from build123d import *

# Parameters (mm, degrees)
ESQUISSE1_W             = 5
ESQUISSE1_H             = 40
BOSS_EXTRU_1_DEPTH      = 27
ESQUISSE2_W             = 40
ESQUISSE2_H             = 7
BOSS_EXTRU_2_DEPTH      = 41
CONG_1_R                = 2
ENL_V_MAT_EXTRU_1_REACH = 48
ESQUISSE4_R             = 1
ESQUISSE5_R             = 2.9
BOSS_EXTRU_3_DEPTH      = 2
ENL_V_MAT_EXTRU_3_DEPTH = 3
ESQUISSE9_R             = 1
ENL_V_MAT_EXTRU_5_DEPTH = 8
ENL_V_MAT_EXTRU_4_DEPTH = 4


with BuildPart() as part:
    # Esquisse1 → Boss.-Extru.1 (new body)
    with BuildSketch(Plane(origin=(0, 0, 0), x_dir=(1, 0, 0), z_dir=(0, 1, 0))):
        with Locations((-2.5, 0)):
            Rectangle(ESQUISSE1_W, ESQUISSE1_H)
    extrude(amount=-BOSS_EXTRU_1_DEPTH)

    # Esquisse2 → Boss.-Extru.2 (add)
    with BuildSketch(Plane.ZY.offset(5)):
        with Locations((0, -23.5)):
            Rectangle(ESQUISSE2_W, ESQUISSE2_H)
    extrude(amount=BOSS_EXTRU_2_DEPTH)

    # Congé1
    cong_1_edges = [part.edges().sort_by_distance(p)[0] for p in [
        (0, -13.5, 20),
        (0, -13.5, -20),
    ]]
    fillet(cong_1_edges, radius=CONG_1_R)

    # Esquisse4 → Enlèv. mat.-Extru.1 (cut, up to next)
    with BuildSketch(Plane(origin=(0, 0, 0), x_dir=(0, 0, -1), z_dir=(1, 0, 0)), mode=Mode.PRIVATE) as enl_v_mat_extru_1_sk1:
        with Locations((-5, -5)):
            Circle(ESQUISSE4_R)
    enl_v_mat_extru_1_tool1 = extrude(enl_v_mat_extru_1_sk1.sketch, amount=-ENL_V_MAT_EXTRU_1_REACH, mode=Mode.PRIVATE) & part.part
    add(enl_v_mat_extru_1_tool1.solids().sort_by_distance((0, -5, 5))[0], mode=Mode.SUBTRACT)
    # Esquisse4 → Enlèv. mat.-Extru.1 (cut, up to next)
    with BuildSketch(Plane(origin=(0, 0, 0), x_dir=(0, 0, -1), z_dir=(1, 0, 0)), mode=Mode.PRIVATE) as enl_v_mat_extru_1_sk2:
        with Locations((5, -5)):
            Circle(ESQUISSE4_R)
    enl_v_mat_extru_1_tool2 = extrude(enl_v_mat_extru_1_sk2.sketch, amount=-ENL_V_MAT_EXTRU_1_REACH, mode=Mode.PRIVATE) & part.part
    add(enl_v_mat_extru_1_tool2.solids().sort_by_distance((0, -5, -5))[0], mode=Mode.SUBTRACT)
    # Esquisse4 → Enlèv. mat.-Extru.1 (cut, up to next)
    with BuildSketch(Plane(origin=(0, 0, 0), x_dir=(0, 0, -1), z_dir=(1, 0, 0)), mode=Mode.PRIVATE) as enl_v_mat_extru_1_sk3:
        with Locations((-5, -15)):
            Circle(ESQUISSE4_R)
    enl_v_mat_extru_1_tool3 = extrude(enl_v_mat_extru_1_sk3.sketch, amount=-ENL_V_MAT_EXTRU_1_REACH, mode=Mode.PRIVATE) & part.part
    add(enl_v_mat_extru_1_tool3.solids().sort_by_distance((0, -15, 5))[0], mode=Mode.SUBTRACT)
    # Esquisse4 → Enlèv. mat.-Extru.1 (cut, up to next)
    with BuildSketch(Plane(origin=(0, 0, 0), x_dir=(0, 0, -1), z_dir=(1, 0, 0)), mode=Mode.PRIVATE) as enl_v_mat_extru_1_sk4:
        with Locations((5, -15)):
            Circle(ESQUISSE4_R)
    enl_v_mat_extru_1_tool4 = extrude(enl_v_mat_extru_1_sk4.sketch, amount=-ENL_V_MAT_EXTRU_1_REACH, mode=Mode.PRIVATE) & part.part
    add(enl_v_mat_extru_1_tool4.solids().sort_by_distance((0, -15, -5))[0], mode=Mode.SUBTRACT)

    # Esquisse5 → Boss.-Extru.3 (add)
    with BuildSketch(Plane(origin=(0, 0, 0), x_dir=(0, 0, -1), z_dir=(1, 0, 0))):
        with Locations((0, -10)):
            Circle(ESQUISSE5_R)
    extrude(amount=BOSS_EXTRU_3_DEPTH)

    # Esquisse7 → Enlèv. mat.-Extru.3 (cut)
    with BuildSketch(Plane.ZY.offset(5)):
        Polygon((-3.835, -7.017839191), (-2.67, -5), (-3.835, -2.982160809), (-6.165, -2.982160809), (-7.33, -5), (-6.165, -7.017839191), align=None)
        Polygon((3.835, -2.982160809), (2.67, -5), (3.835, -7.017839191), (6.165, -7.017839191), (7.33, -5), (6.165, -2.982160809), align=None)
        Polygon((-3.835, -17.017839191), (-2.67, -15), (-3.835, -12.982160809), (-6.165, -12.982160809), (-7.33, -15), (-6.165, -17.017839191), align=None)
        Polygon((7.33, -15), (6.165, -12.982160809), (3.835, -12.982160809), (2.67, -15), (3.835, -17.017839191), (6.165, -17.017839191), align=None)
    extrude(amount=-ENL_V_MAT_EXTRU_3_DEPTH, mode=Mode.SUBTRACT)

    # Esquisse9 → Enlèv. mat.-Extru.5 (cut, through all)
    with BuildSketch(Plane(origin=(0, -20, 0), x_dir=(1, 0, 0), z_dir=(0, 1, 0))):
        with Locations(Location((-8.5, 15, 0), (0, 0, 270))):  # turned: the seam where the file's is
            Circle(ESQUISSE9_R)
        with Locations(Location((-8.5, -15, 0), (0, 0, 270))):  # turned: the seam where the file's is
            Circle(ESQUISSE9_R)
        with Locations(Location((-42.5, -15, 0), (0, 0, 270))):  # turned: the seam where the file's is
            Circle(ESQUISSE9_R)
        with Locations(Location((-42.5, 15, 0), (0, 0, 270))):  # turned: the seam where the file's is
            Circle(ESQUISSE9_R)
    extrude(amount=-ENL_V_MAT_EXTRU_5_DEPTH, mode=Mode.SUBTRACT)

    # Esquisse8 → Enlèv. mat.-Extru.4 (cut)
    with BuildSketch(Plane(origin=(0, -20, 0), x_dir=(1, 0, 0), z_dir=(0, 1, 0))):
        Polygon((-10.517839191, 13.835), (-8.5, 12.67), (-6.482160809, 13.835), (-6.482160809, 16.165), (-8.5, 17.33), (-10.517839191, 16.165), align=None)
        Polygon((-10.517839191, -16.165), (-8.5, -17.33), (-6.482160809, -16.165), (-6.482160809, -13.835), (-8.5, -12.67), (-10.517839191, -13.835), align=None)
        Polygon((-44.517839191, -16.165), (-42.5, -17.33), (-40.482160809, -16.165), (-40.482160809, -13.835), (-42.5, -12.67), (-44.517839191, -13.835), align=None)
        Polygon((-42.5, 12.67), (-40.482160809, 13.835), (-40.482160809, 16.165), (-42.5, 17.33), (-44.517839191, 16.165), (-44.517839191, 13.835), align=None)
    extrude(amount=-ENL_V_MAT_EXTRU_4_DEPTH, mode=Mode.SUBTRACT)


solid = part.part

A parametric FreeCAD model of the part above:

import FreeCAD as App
import Part
import Sketcher

V = App.Vector
Q = App.Units.Quantity


def edges_at(feature, points):
    """Names of the edges that pass closest to the given points."""
    edges = feature.Shape.Edges
    near = lambda p: min(range(len(edges)), key=lambda i: edges[i].distToShape(Part.Vertex(*p))[0])
    return sorted({f"Edge{near(p) + 1}" for p in points})


def add_polygon(sketch, points):
    """Adds a closed chain of lines whose ends are joined by coincident constraints."""
    first, n = sketch.GeometryCount, len(points)
    for a, b in zip(points, points[1:] + points[:1]):
        sketch.addGeometry(Part.LineSegment(App.Vector(*a, 0), App.Vector(*b, 0)), False)
    for i in range(n):
        sketch.addConstraint(Sketcher.Constraint("Coincident", first + i, 2, first + (i + 1) % n, 1))

doc = App.newDocument("Part")
body = doc.addObject("PartDesign::Body", "Body")

# Sketch on XZ plane
sketch1 = doc.addObject("Sketcher::SketchObject", "Sketch")
body.addObject(sketch1)
sketch1.AttachmentSupport = (doc.XZ_Plane, [""])
sketch1.MapMode = "FlatFace"
add_polygon(sketch1, [(-5, -20), (-5, 20), (0, 20), (0, -20)])  # lines 0-3
sketch1.addConstraint([
    Sketcher.Constraint("Vertical", 0),
    Sketcher.Constraint("Horizontal", 1),
    Sketcher.Constraint("Vertical", 2),
    Sketcher.Constraint("Horizontal", 3),
    Sketcher.Constraint("Symmetric", 1, 2, 2, 2, -1, 1),
    Sketcher.Constraint("DistanceX", 1, 1, 1, 2, 5.0),
    Sketcher.Constraint("DistanceY", 0, 1, 0, 2, 40.0),
])
pad1 = doc.addObject("PartDesign::Pad", "Pad")
body.addObject(pad1)
pad1.Profile = sketch1
pad1.Length = 27

# Sketch on YZ plane
sketch2 = doc.addObject("Sketcher::SketchObject", "Sketch001")
body.addObject(sketch2)
sketch2.AttachmentSupport = (doc.YZ_Plane, [""])
sketch2.MapMode = "FlatFace"
sketch2.AttachmentOffset = App.Placement(V(0, 0, -5), App.Rotation())
add_polygon(sketch2, [(-20, -20), (-27, -20), (-27, 20), (-20, 20)])  # lines 0-3
sketch2.addConstraint([
    Sketcher.Constraint("Horizontal", 0),
    Sketcher.Constraint("Vertical", 1),
    Sketcher.Constraint("Horizontal", 2),
    Sketcher.Constraint("Vertical", 3),
    Sketcher.Constraint("DistanceX", 0, 2, 0, 1, 7.0),
    Sketcher.Constraint("DistanceY", 1, 1, 1, 2, 40.0),
    Sketcher.Constraint("DistanceX", 0, 2, -1, 1, 27.0),
    Sketcher.Constraint("DistanceY", 0, 2, -1, 1, 20.0),
])
pad2 = doc.addObject("PartDesign::Pad", "Pad001")
body.addObject(pad2)
pad2.Profile = sketch2
pad2.Length = 41
pad2.Reversed = True
doc.recompute()

fillet = doc.addObject("PartDesign::Fillet", "Fillet")
body.addObject(fillet)
fillet.Base = (pad2, edges_at(pad2, [(0, -13.5, 20), (0, -13.5, -20)]))
fillet.Radius = 2

# Sketch on YZ plane
sketch3 = doc.addObject("Sketcher::SketchObject", "Sketch002")
body.addObject(sketch3)
sketch3.AttachmentSupport = (doc.YZ_Plane, [""])
sketch3.MapMode = "FlatFace"
sketch3.addGeometry(Part.Circle(V(-5, 5, 0), V(0, 0, 1), 1), False)
sketch3.addConstraint([
    Sketcher.Constraint("Diameter", 0, 2.0),
    Sketcher.Constraint("DistanceX", 0, 3, -1, 1, 5.0),
    Sketcher.Constraint("DistanceY", -1, 1, 0, 3, 5.0),
])
pocket1 = doc.addObject("PartDesign::Pocket", "Pocket")
body.addObject(pocket1)
pocket1.Profile = sketch3
pocket1.Type = "UpToFirst"

# Sketch on YZ plane
sketch4 = doc.addObject("Sketcher::SketchObject", "Sketch003")
body.addObject(sketch4)
sketch4.AttachmentSupport = (doc.YZ_Plane, [""])
sketch4.MapMode = "FlatFace"
sketch4.addGeometry(Part.Circle(V(-5, -5, 0), V(0, 0, 1), 1), False)
sketch4.addConstraint([
    Sketcher.Constraint("Diameter", 0, 2.0),
    Sketcher.Constraint("DistanceX", 0, 3, -1, 1, 5.0),
    Sketcher.Constraint("DistanceY", 0, 3, -1, 1, 5.0),
])
pocket2 = doc.addObject("PartDesign::Pocket", "Pocket001")
body.addObject(pocket2)
pocket2.Profile = sketch4
pocket2.Type = "UpToFirst"

# Sketch on YZ plane
sketch5 = doc.addObject("Sketcher::SketchObject", "Sketch004")
body.addObject(sketch5)
sketch5.AttachmentSupport = (doc.YZ_Plane, [""])
sketch5.MapMode = "FlatFace"
sketch5.addGeometry(Part.Circle(V(-15, 5, 0), V(0, 0, 1), 1), False)
sketch5.addConstraint([
    Sketcher.Constraint("Diameter", 0, 2.0),
    Sketcher.Constraint("DistanceX", 0, 3, -1, 1, 15.0),
    Sketcher.Constraint("DistanceY", -1, 1, 0, 3, 5.0),
])
pocket3 = doc.addObject("PartDesign::Pocket", "Pocket002")
body.addObject(pocket3)
pocket3.Profile = sketch5
pocket3.Type = "UpToFirst"

# Sketch on YZ plane
sketch6 = doc.addObject("Sketcher::SketchObject", "Sketch005")
body.addObject(sketch6)
sketch6.AttachmentSupport = (doc.YZ_Plane, [""])
sketch6.MapMode = "FlatFace"
sketch6.addGeometry(Part.Circle(V(-15, -5, 0), V(0, 0, 1), 1), False)
sketch6.addConstraint([
    Sketcher.Constraint("Diameter", 0, 2.0),
    Sketcher.Constraint("DistanceX", 0, 3, -1, 1, 15.0),
    Sketcher.Constraint("DistanceY", 0, 3, -1, 1, 5.0),
])
pocket4 = doc.addObject("PartDesign::Pocket", "Pocket003")
body.addObject(pocket4)
pocket4.Profile = sketch6
pocket4.Type = "UpToFirst"

# Sketch on YZ plane
sketch7 = doc.addObject("Sketcher::SketchObject", "Sketch006")
body.addObject(sketch7)
sketch7.AttachmentSupport = (doc.YZ_Plane, [""])
sketch7.MapMode = "FlatFace"
sketch7.addGeometry(Part.Circle(V(-10, 0, 0), V(0, 0, 1), 2.9), False)
sketch7.addConstraint([
    Sketcher.Constraint("PointOnObject", 0, 3, -1),
    Sketcher.Constraint("Diameter", 0, 5.8),
    Sketcher.Constraint("DistanceX", 0, 3, -1, 1, 10.0),
])
pad3 = doc.addObject("PartDesign::Pad", "Pad002")
body.addObject(pad3)
pad3.Profile = sketch7
pad3.Length = 2

# Sketch on YZ plane
sketch8 = doc.addObject("Sketcher::SketchObject", "Sketch007")
body.addObject(sketch8)
sketch8.AttachmentSupport = (doc.YZ_Plane, [""])
sketch8.MapMode = "FlatFace"
sketch8.AttachmentOffset = App.Placement(V(0, 0, -5), App.Rotation())
add_polygon(sketch8, [(-7.017839, -3.835), (-5, -2.67), (-2.982161, -3.835), (-2.982161, -6.165), (-5, -7.33), (-7.017839, -6.165)])  # lines 0-5
add_polygon(sketch8, [(-2.982161, 3.835), (-5, 2.67), (-7.017839, 3.835), (-7.017839, 6.165), (-5, 7.33), (-2.982161, 6.165)])  # lines 6-11
add_polygon(sketch8, [(-17.017839, -3.835), (-15, -2.67), (-12.982161, -3.835), (-12.982161, -6.165), (-15, -7.33), (-17.017839, -6.165)])  # lines 12-17
add_polygon(sketch8, [(-15, 7.33), (-12.982161, 6.165), (-12.982161, 3.835), (-15, 2.67), (-17.017839, 3.835), (-17.017839, 6.165)])  # lines 18-23
sketch8.addConstraint([
    Sketcher.Constraint("Vertical", 2),
    Sketcher.Constraint("Vertical", 5),
    Sketcher.Constraint("Vertical", 8),
    Sketcher.Constraint("Vertical", 11),
    Sketcher.Constraint("Vertical", 14),
    Sketcher.Constraint("Vertical", 17),
    Sketcher.Constraint("Vertical", 19),
    Sketcher.Constraint("Vertical", 22),
    Sketcher.Constraint("Symmetric", 0, 2, 6, 2, -1),
    Sketcher.Constraint("Symmetric", 5, 2, 7, 2, -1),
    Sketcher.Constraint("Symmetric", 3, 2, 9, 2, -1),
    Sketcher.Constraint("Symmetric", 2, 2, 10, 2, -1),
    Sketcher.Constraint("Symmetric", 14, 2, 18, 2, -1),
    Sketcher.Constraint("Symmetric", 12, 2, 20, 2, -1),
    Sketcher.Constraint("Symmetric", 17, 2, 21, 2, -1),
    Sketcher.Constraint("Symmetric", 15, 2, 23, 2, -1),
    Sketcher.Constraint("Parallel", 0, 3),
    Sketcher.Constraint("Parallel", 1, 4),
    Sketcher.Constraint("Parallel", 3, 6),
    Sketcher.Constraint("Parallel", 4, 7),
    Sketcher.Constraint("Parallel", 6, 9),
    Sketcher.Constraint("Parallel", 9, 12),
    Sketcher.Constraint("Parallel", 10, 13),
    Sketcher.Constraint("Parallel", 12, 15),
    Sketcher.Constraint("Parallel", 13, 16),
    Sketcher.Constraint("Parallel", 15, 20),
    Sketcher.Constraint("Parallel", 20, 23),
    Sketcher.Constraint("Horizontal", 2, 2, 4, 2),
    Sketcher.Constraint("Horizontal", 1, 2, 5, 2),
    Sketcher.Constraint("Horizontal", 0, 2, 12, 2),
    Sketcher.Constraint("Horizontal", 5, 2, 13, 2),
    Sketcher.Constraint("Horizontal", 4, 2, 14, 2),
    Sketcher.Constraint("Horizontal", 3, 2, 15, 2),
    Sketcher.Constraint("Horizontal", 14, 2, 16, 2),
    Sketcher.Constraint("Angle", 0, Q("30 deg")),
    Sketcher.Constraint("DistanceX", 0, 2, -1, 1, 5.0),
    Sketcher.Constraint("DistanceX", 12, 2, -1, 1, 15.0),
    Sketcher.Constraint("DistanceY", 4, 2, 7, 2, 10.0),
    Sketcher.Constraint("DistanceY", 2, 2, 2, 1, 2.33),
    Sketcher.Constraint("Distance", 0, 2.33),
])
pocket5 = doc.addObject("PartDesign::Pocket", "Pocket004")
body.addObject(pocket5)
pocket5.Profile = sketch8
pocket5.Length = 3
pocket5.Reversed = True

# Sketch on XZ plane
sketch9 = doc.addObject("Sketcher::SketchObject", "Sketch008")
body.addObject(sketch9)
sketch9.AttachmentSupport = (doc.XZ_Plane, [""])
sketch9.MapMode = "FlatFace"
sketch9.AttachmentOffset = App.Placement(V(0, 0, 20), App.Rotation())
sketch9.addGeometry([
    Part.Circle(V(-8.5, -15, 0), V(0, 0, 1), 1),
    Part.Circle(V(-8.5, 15, 0), V(0, 0, 1), 1),
    Part.Circle(V(-42.5, 15, 0), V(0, 0, 1), 1),
    Part.Circle(V(-42.5, -15, 0), V(0, 0, 1), 1),
], False)
sketch9.addConstraint([
    Sketcher.Constraint("Equal", 0, 1),
    Sketcher.Constraint("Equal", 1, 2),
    Sketcher.Constraint("Equal", 2, 3),
    Sketcher.Constraint("Symmetric", 0, 3, 1, 3, -1),
    Sketcher.Constraint("Symmetric", 2, 3, 3, 3, -1),
    Sketcher.Constraint("Horizontal", 1, 3, 2, 3),
    Sketcher.Constraint("Diameter", 0, 2.0),
    Sketcher.Constraint("DistanceY", 0, 3, -1, 1, 15.0),
    Sketcher.Constraint("DistanceX", 2, 3, 1, 3, 34.0),
    Sketcher.Constraint("DistanceX", 0, 3, -1, 1, 8.5),
])
pocket6 = doc.addObject("PartDesign::Pocket", "Pocket005")
body.addObject(pocket6)
pocket6.Profile = sketch9
pocket6.Type = "ThroughAll"
pocket6.Reversed = True

# Sketch on XZ plane
sketch10 = doc.addObject("Sketcher::SketchObject", "Sketch009")
body.addObject(sketch10)
sketch10.AttachmentSupport = (doc.XZ_Plane, [""])
sketch10.MapMode = "FlatFace"
sketch10.AttachmentOffset = App.Placement(V(0, 0, 20), App.Rotation())
add_polygon(sketch10, [(-10.517839, -13.835), (-8.5, -12.67), (-6.482161, -13.835), (-6.482161, -16.165), (-8.5, -17.33), (-10.517839, -16.165)])  # lines 0-5
add_polygon(sketch10, [(-10.517839, 16.165), (-8.5, 17.33), (-6.482161, 16.165), (-6.482161, 13.835), (-8.5, 12.67), (-10.517839, 13.835)])  # lines 6-11
add_polygon(sketch10, [(-44.517839, 16.165), (-42.5, 17.33), (-40.482161, 16.165), (-40.482161, 13.835), (-42.5, 12.67), (-44.517839, 13.835)])  # lines 12-17
add_polygon(sketch10, [(-42.5, -12.67), (-40.482161, -13.835), (-40.482161, -16.165), (-42.5, -17.33), (-44.517839, -16.165), (-44.517839, -13.835)])  # lines 18-23
sketch10.addConstraint([
    Sketcher.Constraint("Vertical", 2),
    Sketcher.Constraint("Vertical", 5),
    Sketcher.Constraint("Vertical", 8),
    Sketcher.Constraint("Vertical", 11),
    Sketcher.Constraint("Vertical", 14),
    Sketcher.Constraint("Vertical", 17),
    Sketcher.Constraint("Vertical", 19),
    Sketcher.Constraint("Vertical", 22),
    Sketcher.Constraint("Symmetric", 3, 2, 6, 2, -1),
    Sketcher.Constraint("Symmetric", 2, 2, 7, 2, -1),
    Sketcher.Constraint("Symmetric", 0, 2, 9, 2, -1),
    Sketcher.Constraint("Symmetric", 5, 2, 10, 2, -1),
    Sketcher.Constraint("Symmetric", 14, 2, 18, 2, -1),
    Sketcher.Constraint("Symmetric", 12, 2, 20, 2, -1),
    Sketcher.Constraint("Symmetric", 17, 2, 21, 2, -1),
    Sketcher.Constraint("Symmetric", 15, 2, 23, 2, -1),
    Sketcher.Constraint("Parallel", 0, 3),
    Sketcher.Constraint("Parallel", 1, 4),
    Sketcher.Constraint("Parallel", 3, 6),
    Sketcher.Constraint("Parallel", 4, 7),
    Sketcher.Constraint("Parallel", 6, 9),
    Sketcher.Constraint("Parallel", 9, 12),
    Sketcher.Constraint("Parallel", 10, 13),
    Sketcher.Constraint("Parallel", 12, 15),
    Sketcher.Constraint("Parallel", 13, 16),
    Sketcher.Constraint("Parallel", 15, 20),
    Sketcher.Constraint("Parallel", 20, 23),
    Sketcher.Constraint("Horizontal", 2, 2, 4, 2),
    Sketcher.Constraint("Horizontal", 1, 2, 5, 2),
    Sketcher.Constraint("Horizontal", 6, 2, 12, 2),
    Sketcher.Constraint("Horizontal", 11, 2, 13, 2),
    Sketcher.Constraint("Horizontal", 10, 2, 14, 2),
    Sketcher.Constraint("Horizontal", 9, 2, 15, 2),
    Sketcher.Constraint("Horizontal", 14, 2, 16, 2),
    Sketcher.Constraint("Angle", 0, Q("30 deg")),
    Sketcher.Constraint("DistanceY", 0, 2, 6, 2, 30.0),
    Sketcher.Constraint("DistanceX", 12, 2, 6, 2, 34.0),
    Sketcher.Constraint("DistanceY", 2, 2, 2, 1, 2.33),
    Sketcher.Constraint("DistanceX", 0, 2, -1, 1, 8.5),
    Sketcher.Constraint("Distance", 0, 2.33),
])
pocket7 = doc.addObject("PartDesign::Pocket", "Pocket006")
body.addObject(pocket7)
pocket7.Profile = sketch10
pocket7.Length = 4
pocket7.Reversed = True

doc.recompute()
